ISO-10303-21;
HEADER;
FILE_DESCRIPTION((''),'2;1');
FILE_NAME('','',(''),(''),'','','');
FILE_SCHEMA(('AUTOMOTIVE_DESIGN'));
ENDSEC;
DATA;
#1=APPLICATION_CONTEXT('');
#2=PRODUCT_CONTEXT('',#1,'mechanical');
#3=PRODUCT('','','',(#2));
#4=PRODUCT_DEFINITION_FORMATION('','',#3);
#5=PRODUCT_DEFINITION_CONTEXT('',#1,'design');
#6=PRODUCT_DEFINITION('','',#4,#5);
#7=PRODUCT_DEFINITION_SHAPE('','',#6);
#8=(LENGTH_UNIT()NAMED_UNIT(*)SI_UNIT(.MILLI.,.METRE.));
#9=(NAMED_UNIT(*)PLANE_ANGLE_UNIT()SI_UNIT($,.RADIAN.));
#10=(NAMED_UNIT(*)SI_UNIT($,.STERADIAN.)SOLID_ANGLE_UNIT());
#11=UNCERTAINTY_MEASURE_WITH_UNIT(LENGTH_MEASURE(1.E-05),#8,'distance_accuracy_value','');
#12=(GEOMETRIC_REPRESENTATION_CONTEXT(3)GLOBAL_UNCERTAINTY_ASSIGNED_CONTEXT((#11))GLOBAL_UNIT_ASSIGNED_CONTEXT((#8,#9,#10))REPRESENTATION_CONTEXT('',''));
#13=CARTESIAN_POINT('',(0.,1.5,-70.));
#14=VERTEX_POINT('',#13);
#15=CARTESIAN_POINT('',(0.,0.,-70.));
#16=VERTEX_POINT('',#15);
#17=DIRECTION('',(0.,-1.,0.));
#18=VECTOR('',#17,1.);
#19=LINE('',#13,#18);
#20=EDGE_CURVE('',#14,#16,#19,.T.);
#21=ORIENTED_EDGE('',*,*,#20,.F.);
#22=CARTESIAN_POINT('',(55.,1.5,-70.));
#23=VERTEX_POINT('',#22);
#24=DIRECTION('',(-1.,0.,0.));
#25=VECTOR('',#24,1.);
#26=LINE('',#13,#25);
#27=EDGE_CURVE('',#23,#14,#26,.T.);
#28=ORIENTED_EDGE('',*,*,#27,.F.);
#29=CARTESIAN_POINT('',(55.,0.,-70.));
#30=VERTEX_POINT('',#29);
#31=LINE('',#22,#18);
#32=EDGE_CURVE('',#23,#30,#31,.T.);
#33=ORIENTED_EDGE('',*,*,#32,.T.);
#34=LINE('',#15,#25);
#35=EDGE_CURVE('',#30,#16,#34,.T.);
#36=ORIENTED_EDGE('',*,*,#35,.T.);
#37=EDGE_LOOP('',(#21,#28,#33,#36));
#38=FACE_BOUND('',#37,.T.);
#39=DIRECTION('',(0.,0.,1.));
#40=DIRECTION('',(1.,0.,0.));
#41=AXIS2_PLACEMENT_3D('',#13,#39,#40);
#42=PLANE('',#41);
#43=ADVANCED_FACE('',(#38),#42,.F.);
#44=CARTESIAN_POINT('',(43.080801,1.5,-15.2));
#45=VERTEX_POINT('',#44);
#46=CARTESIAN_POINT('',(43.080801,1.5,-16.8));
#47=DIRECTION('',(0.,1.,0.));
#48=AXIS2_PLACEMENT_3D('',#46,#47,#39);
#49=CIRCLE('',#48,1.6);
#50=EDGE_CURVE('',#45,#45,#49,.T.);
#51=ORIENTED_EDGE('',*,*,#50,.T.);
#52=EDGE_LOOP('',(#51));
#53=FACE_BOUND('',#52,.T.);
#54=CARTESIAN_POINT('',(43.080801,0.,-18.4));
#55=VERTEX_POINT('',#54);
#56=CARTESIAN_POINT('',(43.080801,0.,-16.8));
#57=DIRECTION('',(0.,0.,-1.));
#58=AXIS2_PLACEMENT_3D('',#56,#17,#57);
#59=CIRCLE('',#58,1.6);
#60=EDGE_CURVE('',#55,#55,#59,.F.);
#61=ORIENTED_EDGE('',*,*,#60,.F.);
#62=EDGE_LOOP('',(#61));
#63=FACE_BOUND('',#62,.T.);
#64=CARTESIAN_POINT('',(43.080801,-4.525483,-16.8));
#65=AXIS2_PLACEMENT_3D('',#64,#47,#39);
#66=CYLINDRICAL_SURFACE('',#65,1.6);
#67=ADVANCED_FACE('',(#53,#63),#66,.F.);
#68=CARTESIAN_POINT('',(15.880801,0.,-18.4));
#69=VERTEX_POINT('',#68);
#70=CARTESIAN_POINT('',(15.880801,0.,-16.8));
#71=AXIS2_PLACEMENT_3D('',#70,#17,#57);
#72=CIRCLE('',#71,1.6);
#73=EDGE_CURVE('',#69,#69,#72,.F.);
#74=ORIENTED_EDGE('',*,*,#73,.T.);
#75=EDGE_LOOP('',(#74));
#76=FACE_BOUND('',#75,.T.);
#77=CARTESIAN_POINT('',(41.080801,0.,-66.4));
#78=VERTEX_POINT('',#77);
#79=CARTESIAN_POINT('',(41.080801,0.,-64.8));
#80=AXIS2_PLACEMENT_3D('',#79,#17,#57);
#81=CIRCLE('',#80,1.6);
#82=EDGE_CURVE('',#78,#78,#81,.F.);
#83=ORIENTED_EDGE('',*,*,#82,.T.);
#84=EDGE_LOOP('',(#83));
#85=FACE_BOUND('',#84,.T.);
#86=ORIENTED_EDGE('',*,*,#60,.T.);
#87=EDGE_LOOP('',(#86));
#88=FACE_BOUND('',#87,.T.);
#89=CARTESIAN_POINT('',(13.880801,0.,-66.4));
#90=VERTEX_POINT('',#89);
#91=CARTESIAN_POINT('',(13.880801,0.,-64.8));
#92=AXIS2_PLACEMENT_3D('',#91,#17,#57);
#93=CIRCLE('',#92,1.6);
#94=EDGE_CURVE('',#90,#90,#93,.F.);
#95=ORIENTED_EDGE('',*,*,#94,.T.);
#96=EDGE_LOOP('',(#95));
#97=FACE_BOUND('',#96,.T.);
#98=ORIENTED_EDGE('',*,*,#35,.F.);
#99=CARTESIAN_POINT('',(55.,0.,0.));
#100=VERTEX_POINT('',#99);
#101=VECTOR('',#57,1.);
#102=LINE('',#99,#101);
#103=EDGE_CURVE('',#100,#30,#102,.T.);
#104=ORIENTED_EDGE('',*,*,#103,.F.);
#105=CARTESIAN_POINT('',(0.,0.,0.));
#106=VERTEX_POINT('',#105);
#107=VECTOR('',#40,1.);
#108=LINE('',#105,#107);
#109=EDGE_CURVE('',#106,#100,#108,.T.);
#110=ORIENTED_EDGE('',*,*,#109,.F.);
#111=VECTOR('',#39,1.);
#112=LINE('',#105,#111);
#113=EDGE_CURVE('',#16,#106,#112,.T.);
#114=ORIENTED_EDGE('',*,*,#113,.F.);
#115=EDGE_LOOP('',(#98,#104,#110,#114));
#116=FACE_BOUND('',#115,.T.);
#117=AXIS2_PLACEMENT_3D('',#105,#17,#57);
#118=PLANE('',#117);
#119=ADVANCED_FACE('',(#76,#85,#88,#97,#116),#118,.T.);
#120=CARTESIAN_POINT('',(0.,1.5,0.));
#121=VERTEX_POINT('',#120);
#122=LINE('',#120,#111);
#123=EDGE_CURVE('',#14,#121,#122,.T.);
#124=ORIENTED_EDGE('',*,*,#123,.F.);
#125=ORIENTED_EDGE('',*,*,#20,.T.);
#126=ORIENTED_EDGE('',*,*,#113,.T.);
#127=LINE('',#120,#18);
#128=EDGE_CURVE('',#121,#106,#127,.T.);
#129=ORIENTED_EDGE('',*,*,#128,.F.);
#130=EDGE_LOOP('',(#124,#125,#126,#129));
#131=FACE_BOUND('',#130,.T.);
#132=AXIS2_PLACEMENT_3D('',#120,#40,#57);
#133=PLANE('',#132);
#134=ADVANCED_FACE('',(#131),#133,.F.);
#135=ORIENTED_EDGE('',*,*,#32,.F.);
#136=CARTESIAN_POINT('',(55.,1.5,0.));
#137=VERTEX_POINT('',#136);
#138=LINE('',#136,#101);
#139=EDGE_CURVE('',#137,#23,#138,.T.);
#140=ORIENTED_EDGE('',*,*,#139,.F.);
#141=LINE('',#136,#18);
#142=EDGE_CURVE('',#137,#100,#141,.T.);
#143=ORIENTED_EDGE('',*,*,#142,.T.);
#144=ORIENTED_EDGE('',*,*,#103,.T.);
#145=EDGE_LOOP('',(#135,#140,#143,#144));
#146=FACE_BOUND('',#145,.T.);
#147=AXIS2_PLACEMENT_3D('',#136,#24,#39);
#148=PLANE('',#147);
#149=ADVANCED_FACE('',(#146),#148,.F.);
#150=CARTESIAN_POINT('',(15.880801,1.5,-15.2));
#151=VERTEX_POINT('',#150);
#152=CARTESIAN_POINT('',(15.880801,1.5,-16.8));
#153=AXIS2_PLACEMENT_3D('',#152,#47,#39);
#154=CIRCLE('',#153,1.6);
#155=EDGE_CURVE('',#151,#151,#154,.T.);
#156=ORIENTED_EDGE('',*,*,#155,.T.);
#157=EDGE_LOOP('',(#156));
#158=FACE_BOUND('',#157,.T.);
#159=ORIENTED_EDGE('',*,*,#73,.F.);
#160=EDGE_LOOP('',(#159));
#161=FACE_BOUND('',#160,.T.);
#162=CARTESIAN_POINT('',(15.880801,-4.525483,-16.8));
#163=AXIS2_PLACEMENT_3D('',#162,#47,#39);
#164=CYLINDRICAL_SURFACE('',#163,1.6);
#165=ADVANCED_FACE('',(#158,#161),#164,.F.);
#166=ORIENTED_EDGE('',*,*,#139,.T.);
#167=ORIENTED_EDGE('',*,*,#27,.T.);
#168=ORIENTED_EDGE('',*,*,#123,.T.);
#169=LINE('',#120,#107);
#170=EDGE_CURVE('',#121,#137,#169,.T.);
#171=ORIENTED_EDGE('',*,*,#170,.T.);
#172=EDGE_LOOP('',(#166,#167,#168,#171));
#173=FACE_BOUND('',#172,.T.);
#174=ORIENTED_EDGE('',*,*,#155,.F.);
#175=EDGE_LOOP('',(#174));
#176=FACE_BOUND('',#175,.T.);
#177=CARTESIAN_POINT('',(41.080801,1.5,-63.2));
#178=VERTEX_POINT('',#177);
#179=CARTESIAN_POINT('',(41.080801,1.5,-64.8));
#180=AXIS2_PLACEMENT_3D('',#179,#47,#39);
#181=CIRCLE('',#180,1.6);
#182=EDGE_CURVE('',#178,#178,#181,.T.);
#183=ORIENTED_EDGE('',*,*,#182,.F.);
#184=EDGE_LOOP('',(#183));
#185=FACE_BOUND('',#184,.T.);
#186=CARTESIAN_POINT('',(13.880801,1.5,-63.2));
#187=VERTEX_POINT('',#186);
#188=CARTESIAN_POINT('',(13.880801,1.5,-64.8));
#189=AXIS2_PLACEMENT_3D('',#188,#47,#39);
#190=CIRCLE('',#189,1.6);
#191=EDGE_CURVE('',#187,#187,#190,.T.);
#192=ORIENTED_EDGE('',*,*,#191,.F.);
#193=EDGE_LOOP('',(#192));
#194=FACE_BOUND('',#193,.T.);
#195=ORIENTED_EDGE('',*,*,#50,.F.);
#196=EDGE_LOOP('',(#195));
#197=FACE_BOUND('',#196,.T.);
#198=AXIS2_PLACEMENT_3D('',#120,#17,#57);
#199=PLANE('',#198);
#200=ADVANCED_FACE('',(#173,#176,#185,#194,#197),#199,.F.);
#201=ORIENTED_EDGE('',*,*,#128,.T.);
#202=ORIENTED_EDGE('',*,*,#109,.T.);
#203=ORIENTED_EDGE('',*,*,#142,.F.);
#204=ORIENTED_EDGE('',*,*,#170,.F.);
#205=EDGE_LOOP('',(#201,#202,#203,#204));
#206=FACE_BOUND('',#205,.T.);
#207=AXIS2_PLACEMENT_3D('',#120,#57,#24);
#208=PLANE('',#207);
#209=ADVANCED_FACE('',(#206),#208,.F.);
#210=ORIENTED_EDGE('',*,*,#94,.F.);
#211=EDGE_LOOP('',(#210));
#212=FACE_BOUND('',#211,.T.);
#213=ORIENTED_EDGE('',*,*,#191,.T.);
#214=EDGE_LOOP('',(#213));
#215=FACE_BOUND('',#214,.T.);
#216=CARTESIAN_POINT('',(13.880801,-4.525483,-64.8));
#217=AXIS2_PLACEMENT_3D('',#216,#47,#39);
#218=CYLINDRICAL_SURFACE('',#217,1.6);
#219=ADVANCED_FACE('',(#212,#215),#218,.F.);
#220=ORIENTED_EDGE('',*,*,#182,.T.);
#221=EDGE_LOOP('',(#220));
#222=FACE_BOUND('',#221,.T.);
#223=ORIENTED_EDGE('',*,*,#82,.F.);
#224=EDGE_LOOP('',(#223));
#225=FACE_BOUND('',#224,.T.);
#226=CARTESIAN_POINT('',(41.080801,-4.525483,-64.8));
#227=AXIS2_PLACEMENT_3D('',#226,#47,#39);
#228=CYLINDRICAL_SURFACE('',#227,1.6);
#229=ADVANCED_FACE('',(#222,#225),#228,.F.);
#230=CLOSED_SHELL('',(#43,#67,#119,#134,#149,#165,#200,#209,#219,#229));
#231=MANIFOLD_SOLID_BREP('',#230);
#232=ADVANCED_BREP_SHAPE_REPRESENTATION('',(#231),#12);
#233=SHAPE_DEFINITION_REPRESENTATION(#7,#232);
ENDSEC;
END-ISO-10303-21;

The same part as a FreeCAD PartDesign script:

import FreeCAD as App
import Part
import Sketcher
from FreeCAD import Vector


def add_polygon(sketch, points):
    """Adds a closed chain of lines whose ends are joined by coincident constraints."""
    first, n = sketch.GeometryCount, len(points)
    for a, b in zip(points, points[1:] + points[:1]):
        sketch.addGeometry(Part.LineSegment(App.Vector(*a, 0), App.Vector(*b, 0)), False)
    for i in range(n):
        sketch.addConstraint(Sketcher.Constraint("Coincident", first + i, 2, first + (i + 1) % n, 1))

doc = App.newDocument("Part")
body = doc.addObject("PartDesign::Body", "Body")

sketch1 = doc.addObject("Sketcher::SketchObject", "Sketch")
body.addObject(sketch1)
sketch1.AttachmentSupport = (doc.XZ_Plane, [""])
sketch1.MapMode = "FlatFace"
add_polygon(sketch1, [(0, -70), (0, 0), (55, 0), (55, -70)])
sketch1.addConstraint([
    Sketcher.Constraint("Vertical", 0),
    Sketcher.Constraint("Horizontal", 1),
    Sketcher.Constraint("Vertical", 2),
    Sketcher.Constraint("Horizontal", 3),
    Sketcher.Constraint("Coincident", 0, 2, -1, 1),
    Sketcher.Constraint("DistanceX", 1, 1, 1, 2, 55.0),
    Sketcher.Constraint("DistanceY", 0, 1, 0, 2, 70.0),
])
pad1 = doc.addObject("PartDesign::Pad", "Pad")
body.addObject(pad1)
pad1.Profile = sketch1
pad1.Length = 1.5
pad1.Reversed = True

sketch2 = doc.addObject("Sketcher::SketchObject", "Sketch001")
body.addObject(sketch2)
sketch2.AttachmentSupport = (doc.XZ_Plane, [""])
sketch2.MapMode = "FlatFace"
sketch2.AttachmentOffset = App.Placement(Vector(0, 0, -1.5), App.Rotation())
sketch2.addGeometry([
    Part.Circle(Vector(13.9, -64.8, 0), Vector(0, 0, 1), 1.6),
    Part.Circle(Vector(41.1, -64.8, 0), Vector(0, 0, 1), 1.6),
    Part.Circle(Vector(15.9, -16.8, 0), Vector(0, 0, 1), 1.6),
    Part.Circle(Vector(43.1, -16.8, 0), Vector(0, 0, 1), 1.6),
], False)
sketch2.addConstraint([
    Sketcher.Constraint("Equal", 0, 1),
    Sketcher.Constraint("Equal", 1, 2),
    Sketcher.Constraint("Equal", 2, 3),
    Sketcher.Constraint("Horizontal", 0, 3, 1, 3),
    Sketcher.Constraint("Horizontal", 2, 3, 3, 3),
    Sketcher.Constraint("Diameter", 0, 3.2),
    Sketcher.Constraint("DistanceX", 0, 3, 2, 3, 2.0),
    Sketcher.Constraint("DistanceY", 0, 3, 2, 3, 48.0),
    Sketcher.Constraint("DistanceX", 1, 3, 3, 3, 2.0),
    Sketcher.Constraint("DistanceY", 0, 3, -1, 1, 64.8),
    Sketcher.Constraint("DistanceX", 0, 3, 1, 3, 27.2),
    Sketcher.Constraint("DistanceX", -1, 1, 0, 3, 13.880801),
])
pocket1 = doc.addObject("PartDesign::Pocket", "Pocket")
body.addObject(pocket1)
pocket1.Profile = sketch2
pocket1.Length = 1.5
pocket1.Reversed = True

doc.recompute()
